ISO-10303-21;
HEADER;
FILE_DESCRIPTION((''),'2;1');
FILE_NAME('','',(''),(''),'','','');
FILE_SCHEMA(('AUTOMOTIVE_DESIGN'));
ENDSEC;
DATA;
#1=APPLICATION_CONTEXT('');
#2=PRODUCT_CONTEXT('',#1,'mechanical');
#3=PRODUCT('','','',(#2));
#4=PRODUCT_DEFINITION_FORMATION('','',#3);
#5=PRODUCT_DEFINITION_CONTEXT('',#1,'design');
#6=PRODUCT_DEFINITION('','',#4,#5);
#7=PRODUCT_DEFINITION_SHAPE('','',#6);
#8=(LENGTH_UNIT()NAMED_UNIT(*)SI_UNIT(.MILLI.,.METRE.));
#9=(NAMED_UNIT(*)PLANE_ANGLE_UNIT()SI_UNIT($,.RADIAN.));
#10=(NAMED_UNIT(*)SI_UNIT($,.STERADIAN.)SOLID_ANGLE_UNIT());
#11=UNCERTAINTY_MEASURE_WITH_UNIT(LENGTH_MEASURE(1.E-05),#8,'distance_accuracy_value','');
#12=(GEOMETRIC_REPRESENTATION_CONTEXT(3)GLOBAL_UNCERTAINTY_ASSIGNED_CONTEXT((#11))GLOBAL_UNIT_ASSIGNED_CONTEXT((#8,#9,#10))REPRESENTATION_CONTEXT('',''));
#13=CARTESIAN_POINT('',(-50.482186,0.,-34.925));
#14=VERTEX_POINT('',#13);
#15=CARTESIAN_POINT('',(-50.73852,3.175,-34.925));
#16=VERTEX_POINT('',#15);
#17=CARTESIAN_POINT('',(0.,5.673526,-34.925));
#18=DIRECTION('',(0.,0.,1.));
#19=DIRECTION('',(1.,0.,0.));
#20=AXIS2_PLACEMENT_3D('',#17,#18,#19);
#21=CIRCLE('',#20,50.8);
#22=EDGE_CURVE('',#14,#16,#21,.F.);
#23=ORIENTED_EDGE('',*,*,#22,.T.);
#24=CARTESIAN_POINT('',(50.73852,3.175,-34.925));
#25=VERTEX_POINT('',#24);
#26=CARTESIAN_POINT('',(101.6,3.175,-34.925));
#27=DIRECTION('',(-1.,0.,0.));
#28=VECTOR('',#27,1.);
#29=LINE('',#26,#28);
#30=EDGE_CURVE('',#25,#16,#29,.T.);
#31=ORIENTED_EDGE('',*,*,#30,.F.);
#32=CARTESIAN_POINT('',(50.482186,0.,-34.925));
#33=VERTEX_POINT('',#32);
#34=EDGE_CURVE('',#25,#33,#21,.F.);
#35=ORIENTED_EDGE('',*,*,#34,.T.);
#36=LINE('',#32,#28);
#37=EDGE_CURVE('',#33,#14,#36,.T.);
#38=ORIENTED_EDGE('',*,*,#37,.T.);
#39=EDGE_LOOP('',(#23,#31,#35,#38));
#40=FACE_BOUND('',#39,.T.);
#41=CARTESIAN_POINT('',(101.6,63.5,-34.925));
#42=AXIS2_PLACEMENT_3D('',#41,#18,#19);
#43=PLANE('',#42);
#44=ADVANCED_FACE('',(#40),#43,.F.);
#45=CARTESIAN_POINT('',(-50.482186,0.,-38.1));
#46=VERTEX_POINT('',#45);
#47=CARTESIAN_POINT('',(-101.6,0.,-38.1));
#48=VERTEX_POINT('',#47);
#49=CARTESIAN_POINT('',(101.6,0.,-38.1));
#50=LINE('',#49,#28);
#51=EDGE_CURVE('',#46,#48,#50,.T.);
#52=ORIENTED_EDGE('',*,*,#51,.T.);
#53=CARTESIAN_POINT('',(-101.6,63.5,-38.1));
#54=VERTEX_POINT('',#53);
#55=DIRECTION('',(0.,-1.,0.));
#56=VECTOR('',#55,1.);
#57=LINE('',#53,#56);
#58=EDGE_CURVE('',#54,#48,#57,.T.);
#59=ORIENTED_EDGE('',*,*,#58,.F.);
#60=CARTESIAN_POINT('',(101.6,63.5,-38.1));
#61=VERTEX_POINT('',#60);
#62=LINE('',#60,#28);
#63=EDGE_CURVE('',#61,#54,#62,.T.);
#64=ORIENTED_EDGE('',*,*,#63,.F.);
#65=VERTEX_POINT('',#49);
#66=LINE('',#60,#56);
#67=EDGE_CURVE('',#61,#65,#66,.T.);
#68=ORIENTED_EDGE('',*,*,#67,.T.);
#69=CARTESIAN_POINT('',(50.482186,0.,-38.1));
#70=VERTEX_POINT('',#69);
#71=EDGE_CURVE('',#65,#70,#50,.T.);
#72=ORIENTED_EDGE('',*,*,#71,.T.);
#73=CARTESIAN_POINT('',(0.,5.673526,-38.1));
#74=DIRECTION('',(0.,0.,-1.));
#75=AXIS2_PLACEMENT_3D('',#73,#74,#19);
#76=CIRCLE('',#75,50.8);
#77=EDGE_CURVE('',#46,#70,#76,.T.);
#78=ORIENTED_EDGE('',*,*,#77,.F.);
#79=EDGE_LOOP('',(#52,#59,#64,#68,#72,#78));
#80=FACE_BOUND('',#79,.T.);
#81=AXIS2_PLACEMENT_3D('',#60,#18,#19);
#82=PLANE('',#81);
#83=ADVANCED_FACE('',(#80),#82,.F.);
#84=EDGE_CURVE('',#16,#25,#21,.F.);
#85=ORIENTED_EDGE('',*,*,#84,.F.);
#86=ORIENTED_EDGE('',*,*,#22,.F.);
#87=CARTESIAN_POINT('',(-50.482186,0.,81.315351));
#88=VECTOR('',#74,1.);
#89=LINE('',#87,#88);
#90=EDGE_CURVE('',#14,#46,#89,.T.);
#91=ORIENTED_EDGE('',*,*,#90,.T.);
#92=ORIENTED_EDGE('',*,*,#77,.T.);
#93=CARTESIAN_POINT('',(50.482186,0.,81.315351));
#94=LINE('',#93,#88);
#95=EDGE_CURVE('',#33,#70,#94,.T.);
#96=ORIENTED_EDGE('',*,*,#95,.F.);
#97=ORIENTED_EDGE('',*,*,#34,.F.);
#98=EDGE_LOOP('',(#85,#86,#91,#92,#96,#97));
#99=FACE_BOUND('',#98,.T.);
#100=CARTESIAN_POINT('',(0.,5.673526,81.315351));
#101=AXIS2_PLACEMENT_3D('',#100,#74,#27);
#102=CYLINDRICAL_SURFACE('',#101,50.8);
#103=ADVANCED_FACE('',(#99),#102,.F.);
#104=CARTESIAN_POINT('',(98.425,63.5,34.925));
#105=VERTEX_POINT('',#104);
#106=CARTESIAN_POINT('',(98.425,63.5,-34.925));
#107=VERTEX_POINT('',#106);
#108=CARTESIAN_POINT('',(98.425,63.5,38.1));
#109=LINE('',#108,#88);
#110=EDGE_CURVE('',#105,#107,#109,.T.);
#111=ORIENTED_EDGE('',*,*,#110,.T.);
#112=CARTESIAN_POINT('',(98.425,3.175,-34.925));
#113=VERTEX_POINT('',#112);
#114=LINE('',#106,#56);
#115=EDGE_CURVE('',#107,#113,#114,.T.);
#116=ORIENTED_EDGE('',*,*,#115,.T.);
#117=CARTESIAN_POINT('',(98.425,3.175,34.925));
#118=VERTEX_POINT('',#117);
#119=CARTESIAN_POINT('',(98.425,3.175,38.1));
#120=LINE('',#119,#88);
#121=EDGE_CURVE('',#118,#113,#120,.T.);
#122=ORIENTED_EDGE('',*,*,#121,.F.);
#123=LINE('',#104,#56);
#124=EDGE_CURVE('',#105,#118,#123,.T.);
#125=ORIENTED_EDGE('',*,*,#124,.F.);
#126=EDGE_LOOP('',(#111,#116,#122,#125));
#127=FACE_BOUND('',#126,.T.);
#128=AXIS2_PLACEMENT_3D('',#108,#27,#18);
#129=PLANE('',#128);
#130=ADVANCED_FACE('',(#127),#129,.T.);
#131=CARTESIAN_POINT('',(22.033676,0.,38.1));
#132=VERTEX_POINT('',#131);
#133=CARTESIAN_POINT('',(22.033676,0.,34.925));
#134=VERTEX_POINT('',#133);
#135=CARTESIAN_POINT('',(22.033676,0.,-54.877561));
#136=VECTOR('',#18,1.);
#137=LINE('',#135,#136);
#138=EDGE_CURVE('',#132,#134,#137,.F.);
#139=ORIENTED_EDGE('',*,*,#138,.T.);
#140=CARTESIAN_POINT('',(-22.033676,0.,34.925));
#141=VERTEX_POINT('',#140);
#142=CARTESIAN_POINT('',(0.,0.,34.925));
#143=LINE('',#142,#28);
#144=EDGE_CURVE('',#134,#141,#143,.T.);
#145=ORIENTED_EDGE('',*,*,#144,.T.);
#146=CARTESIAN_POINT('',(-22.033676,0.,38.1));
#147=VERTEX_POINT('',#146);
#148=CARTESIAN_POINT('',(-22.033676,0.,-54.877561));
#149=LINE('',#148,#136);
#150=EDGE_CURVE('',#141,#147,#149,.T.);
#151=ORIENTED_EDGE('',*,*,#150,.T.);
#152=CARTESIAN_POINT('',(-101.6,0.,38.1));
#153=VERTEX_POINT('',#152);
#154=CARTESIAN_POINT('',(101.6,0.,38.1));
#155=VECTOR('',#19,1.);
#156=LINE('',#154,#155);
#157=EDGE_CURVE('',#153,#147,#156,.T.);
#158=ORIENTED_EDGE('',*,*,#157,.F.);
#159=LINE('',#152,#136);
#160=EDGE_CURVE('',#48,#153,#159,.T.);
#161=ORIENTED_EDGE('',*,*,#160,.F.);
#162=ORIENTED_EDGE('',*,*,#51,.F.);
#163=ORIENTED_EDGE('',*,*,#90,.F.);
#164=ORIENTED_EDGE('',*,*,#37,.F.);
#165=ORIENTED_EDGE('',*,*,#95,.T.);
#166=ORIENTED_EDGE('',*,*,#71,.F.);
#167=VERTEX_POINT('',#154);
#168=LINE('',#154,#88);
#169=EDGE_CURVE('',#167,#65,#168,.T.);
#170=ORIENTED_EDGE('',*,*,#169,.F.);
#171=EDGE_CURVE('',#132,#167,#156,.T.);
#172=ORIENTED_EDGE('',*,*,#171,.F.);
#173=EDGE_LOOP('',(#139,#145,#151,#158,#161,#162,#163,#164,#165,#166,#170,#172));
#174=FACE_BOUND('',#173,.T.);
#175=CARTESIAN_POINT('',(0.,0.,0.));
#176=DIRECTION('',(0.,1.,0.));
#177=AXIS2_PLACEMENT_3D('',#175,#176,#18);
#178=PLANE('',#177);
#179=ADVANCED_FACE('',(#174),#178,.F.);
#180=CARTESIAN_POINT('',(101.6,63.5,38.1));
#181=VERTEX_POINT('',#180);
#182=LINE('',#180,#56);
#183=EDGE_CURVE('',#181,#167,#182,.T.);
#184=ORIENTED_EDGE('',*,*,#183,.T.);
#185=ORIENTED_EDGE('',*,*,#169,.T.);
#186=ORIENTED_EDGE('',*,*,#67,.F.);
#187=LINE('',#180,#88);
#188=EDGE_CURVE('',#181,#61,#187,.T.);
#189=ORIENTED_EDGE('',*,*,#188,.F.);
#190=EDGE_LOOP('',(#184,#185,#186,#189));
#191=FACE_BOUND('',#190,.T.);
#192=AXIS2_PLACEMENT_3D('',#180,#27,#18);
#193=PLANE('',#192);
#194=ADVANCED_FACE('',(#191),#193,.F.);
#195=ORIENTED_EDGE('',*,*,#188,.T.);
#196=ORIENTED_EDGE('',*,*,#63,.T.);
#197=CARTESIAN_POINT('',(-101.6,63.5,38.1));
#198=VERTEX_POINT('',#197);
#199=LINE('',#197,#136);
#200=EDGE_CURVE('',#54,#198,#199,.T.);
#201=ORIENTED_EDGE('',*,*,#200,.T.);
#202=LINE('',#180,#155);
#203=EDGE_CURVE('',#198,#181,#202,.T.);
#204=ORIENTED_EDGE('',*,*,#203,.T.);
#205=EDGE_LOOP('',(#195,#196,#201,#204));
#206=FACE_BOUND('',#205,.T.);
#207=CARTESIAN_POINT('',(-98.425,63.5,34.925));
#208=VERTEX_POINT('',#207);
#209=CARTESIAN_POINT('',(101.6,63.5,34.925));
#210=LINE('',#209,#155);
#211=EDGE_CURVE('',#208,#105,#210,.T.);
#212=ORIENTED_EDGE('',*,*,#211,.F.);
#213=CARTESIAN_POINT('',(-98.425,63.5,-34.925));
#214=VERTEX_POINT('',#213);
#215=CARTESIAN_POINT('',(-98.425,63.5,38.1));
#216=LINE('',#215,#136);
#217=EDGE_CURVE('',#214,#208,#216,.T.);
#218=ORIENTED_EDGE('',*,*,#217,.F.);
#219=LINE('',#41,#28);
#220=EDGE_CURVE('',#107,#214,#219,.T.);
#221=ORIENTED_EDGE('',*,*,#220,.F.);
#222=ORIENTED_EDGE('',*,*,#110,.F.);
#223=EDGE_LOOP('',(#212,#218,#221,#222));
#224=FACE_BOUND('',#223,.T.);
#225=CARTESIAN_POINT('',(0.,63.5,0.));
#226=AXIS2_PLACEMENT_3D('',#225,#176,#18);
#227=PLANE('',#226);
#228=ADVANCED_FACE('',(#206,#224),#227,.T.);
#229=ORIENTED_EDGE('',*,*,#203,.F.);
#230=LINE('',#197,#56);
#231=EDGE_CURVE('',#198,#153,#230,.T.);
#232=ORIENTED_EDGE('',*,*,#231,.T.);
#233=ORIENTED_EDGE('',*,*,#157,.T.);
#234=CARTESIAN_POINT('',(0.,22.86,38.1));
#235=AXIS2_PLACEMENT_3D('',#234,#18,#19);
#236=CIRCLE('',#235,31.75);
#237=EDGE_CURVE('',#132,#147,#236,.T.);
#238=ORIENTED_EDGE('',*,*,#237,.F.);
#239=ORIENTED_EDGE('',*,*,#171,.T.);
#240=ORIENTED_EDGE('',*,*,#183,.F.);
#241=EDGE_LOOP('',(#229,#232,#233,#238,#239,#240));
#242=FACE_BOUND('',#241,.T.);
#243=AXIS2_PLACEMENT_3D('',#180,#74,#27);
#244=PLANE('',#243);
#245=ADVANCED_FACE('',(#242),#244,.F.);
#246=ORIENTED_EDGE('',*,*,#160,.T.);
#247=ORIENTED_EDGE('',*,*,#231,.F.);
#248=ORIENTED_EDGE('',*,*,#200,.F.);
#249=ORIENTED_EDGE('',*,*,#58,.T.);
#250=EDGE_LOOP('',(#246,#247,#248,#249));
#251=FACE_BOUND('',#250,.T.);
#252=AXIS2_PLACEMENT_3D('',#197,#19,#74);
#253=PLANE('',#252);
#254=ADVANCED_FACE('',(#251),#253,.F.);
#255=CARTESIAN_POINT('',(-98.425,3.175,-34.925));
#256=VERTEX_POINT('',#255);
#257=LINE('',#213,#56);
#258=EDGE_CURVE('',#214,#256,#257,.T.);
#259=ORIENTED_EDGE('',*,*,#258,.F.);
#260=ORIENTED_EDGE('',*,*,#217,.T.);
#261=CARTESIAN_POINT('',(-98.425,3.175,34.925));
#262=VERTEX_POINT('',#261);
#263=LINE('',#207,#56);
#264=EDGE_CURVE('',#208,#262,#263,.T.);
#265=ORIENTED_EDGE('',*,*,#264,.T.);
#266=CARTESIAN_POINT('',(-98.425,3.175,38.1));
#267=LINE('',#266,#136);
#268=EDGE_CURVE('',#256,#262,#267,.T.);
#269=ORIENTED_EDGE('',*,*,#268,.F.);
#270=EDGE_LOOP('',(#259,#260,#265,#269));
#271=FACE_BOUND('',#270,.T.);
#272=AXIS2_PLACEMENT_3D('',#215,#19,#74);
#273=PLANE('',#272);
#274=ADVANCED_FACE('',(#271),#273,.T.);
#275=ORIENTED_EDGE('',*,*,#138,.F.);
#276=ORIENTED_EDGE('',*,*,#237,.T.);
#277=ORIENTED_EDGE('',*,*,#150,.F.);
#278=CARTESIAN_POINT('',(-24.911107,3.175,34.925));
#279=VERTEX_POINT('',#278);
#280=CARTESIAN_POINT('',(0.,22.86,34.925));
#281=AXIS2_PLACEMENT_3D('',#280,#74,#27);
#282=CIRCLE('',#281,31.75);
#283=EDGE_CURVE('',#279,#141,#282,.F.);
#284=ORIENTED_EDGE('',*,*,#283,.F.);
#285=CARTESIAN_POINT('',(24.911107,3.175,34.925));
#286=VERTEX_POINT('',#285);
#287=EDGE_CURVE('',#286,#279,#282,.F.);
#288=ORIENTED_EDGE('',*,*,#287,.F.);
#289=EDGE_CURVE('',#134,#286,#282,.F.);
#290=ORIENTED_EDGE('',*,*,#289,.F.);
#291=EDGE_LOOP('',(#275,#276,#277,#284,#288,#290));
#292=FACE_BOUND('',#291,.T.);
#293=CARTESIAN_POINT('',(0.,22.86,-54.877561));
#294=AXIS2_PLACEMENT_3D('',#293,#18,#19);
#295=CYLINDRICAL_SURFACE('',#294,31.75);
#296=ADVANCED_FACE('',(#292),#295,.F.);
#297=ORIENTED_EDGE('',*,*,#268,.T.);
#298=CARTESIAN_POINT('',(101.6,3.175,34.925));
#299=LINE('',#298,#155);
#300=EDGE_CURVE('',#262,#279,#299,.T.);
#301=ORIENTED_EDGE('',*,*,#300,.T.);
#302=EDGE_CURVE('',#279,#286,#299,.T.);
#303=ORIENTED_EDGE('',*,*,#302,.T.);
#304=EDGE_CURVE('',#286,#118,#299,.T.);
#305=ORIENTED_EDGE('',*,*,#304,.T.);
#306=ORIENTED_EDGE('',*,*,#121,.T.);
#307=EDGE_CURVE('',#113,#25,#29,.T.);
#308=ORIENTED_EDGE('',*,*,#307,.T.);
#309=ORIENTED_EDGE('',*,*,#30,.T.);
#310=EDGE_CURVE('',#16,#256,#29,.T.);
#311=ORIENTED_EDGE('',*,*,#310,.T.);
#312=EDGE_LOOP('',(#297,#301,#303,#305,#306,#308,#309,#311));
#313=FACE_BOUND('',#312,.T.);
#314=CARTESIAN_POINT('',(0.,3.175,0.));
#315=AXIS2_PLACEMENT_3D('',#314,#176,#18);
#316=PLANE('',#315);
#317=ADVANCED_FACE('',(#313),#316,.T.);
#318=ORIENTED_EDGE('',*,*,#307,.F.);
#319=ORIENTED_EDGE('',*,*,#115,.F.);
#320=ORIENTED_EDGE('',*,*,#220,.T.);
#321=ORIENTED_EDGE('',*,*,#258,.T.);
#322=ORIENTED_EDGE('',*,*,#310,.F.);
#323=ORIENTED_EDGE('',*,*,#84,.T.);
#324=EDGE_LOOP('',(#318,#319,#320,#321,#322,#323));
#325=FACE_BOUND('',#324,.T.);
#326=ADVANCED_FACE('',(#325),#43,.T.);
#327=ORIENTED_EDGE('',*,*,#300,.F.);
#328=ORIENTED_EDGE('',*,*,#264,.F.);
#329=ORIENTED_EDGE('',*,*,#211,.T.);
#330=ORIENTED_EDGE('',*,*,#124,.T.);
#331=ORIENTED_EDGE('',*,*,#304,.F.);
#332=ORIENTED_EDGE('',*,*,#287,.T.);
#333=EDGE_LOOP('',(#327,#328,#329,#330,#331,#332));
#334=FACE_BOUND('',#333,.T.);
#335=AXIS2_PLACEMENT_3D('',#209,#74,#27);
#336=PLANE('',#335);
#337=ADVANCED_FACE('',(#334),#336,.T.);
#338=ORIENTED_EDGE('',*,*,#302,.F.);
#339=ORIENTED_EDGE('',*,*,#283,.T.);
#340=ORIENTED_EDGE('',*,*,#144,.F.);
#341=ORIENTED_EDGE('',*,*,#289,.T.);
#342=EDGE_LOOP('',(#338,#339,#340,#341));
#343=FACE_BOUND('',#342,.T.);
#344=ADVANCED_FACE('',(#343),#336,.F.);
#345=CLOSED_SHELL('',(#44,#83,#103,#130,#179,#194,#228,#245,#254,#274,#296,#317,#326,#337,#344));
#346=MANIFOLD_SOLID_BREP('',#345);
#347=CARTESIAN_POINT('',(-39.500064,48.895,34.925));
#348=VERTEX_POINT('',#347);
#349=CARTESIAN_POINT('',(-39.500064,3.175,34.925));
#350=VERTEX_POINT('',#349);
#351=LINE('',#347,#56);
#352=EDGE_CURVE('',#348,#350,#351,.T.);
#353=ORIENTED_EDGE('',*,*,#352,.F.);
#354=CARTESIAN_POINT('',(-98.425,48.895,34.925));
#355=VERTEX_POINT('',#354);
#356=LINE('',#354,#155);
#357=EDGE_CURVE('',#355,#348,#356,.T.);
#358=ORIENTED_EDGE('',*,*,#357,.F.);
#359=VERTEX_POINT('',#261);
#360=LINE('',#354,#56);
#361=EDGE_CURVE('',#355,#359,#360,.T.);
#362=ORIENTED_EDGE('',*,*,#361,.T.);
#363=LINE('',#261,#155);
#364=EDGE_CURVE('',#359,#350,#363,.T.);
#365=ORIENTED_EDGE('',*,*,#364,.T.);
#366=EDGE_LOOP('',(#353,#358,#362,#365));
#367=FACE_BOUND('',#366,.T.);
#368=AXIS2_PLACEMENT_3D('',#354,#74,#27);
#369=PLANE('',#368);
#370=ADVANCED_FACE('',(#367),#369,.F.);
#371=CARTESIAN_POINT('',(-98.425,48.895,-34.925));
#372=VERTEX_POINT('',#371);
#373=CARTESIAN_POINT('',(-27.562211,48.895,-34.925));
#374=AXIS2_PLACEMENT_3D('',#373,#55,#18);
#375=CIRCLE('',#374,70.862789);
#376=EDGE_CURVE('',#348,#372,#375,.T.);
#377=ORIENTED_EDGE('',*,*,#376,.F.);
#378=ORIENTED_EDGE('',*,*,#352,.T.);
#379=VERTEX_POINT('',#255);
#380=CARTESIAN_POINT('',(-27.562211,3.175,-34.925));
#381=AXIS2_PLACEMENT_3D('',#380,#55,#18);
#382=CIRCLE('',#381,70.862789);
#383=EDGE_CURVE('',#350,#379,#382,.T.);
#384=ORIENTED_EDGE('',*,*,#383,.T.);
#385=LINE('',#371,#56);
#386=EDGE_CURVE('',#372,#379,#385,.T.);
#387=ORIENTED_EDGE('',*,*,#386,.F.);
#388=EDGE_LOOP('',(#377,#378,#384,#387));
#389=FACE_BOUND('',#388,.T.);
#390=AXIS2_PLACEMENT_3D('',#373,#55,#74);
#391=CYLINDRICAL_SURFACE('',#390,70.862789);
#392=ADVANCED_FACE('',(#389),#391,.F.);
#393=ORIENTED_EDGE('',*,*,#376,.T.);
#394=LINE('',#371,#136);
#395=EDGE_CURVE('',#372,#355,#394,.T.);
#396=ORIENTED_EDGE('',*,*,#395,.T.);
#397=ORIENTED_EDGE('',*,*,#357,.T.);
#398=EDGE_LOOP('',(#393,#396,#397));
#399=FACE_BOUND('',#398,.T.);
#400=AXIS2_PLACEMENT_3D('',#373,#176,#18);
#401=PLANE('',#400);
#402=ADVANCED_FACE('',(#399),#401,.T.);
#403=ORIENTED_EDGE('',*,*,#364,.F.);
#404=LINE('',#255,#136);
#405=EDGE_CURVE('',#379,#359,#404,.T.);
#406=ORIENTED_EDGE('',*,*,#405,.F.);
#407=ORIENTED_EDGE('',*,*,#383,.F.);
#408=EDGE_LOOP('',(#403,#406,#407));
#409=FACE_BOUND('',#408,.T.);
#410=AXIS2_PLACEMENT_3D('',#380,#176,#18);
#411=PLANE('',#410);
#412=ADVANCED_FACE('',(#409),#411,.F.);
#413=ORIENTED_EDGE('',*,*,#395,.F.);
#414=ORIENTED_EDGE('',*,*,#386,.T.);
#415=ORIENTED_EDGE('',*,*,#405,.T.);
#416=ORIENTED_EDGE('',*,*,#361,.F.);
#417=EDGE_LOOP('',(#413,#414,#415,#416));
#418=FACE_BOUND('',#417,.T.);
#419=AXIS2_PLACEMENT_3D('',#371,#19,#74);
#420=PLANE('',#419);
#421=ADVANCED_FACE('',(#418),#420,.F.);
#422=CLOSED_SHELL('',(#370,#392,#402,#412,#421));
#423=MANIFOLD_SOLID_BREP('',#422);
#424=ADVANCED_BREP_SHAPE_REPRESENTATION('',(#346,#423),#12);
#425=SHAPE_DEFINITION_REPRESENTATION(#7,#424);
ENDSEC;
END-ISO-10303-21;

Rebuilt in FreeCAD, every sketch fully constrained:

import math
import FreeCAD as App
import Part
import Sketcher
from FreeCAD import Vector
Q = App.Units.Quantity


def faces_at(feature, points):
    """Names of the faces that lie closest to the given points."""
    faces = feature.Shape.Faces
    near = lambda p: min(range(len(faces)), key=lambda i: faces[i].distToShape(Part.Vertex(*p))[0])
    return sorted({f"Face{near(p) + 1}" for p in points})

doc = App.newDocument("Part")
body = doc.addObject("PartDesign::Body", "Body")

# Sketch on XZ plane
sketch1 = body.newObject("Sketcher::SketchObject", "Sketch")
sketch1.AttachmentSupport = (doc.getObject("XZ_Plane"), [""])
sketch1.MapMode = "FlatFace"
sketch1.addGeometry(Part.LineSegment(Vector(-102, -38, 0), Vector(-102, 38, 0)), False)
sketch1.addGeometry(Part.LineSegment(Vector(-102, 38, 0), Vector(102, 38, 0)), False)
sketch1.addGeometry(Part.LineSegment(Vector(102, 38, 0), Vector(102, -38, 0)), False)
sketch1.addGeometry(Part.LineSegment(Vector(102, -38, 0), Vector(-102, -38, 0)), False)
sketch1.addConstraint(Sketcher.Constraint("Coincident", 0, 2, 1, 1))
sketch1.addConstraint(Sketcher.Constraint("Coincident", 1, 2, 2, 1))
sketch1.addConstraint(Sketcher.Constraint("Coincident", 2, 2, 3, 1))
sketch1.addConstraint(Sketcher.Constraint("Coincident", 3, 2, 0, 1))
sketch1.addConstraint(Sketcher.Constraint("Vertical", 0))
sketch1.addConstraint(Sketcher.Constraint("Horizontal", 1))
sketch1.addConstraint(Sketcher.Constraint("Vertical", 2))
sketch1.addConstraint(Sketcher.Constraint("Horizontal", 3))
sketch1.addConstraint(Sketcher.Constraint("Symmetric", 0, 2, 2, 2, -1, 1))
sketch1.addConstraint(Sketcher.Constraint("DistanceX", 1, 1, 1, 2, Q("8 in")))
sketch1.addConstraint(Sketcher.Constraint("DistanceY", 0, 1, 0, 2, Q("3 in")))
pad1 = body.newObject("PartDesign::Pad", "Pad")
pad1.Profile = sketch1
pad1.Length = Q("2.5 in")
pad1.Reversed = True
doc.recompute()

thickness = body.newObject("PartDesign::Thickness", "Thickness")
thickness.Base = (pad1, faces_at(pad1, [(0, 63.5, 0)]))
thickness.Value = Q("0.125 in")
thickness.Reversed = True
thickness.Join = "Intersection"

# Sketch on XY plane
sketch2 = body.newObject("Sketcher::SketchObject", "Sketch001")
sketch2.AttachmentSupport = (doc.getObject("XY_Plane"), [""])
sketch2.MapMode = "FlatFace"
sketch2.AttachmentOffset = App.Placement(Vector(0, 0, -1.5 * 25.4), App.Rotation())
sketch2.addGeometry(Part.LineSegment(Vector(50, 0, 0), Vector(-50, 0, 0)), False)
sketch2.addGeometry(Part.ArcOfCircle(Part.Circle(Vector(0, 6, 0), Vector(0, 0, 1), 51), math.radians(-6), math.radians(186)), False)
sketch2.addConstraint(Sketcher.Constraint("Coincident", 0, 1, 1, 1))
sketch2.addConstraint(Sketcher.Constraint("Coincident", 1, 2, 0, 2))
sketch2.addConstraint(Sketcher.Constraint("Horizontal", 0))
sketch2.addConstraint(Sketcher.Constraint("Symmetric", 0, 1, 1, 2, -1, 1))
sketch2.addConstraint(Sketcher.Constraint("Radius", 1, Q("2 in")))
sketch2.addConstraint(Sketcher.Constraint("DistanceX", 0, 2, 0, 1, Q("100.964372 mm")))
pocket1 = body.newObject("PartDesign::Pocket", "Pocket")
pocket1.Profile = sketch2
pocket1.Length = Q("0.125 in")
pocket1.Reversed = True

# Sketch on XY plane
sketch3 = body.newObject("Sketcher::SketchObject", "Sketch002")
sketch3.AttachmentSupport = (doc.getObject("XY_Plane"), [""])
sketch3.MapMode = "FlatFace"
sketch3.AttachmentOffset = App.Placement(Vector(0, 0, 1.5 * 25.4), App.Rotation())
sketch3.addGeometry(Part.Circle(Vector(0, 23, 0), Vector(0, 0, 1), 32), False)
sketch3.addConstraint(Sketcher.Constraint("PointOnObject", 0, 3, -2))
sketch3.addConstraint(Sketcher.Constraint("Diameter", 0, Q("2.5 in")))
sketch3.addConstraint(Sketcher.Constraint("DistanceY", -1, 1, 0, 3, Q("0.9 in")))
pocket2 = body.newObject("PartDesign::Pocket", "Pocket001")
pocket2.Profile = sketch3
pocket2.Length = Q("0.125 in")
body2 = doc.addObject("PartDesign::Body", "Body001")

# Sketch on XZ plane
sketch4 = body2.newObject("Sketcher::SketchObject", "Sketch003")
sketch4.AttachmentSupport = (doc.getObject("XZ_Plane001"), [""])
sketch4.MapMode = "FlatFace"
sketch4.AttachmentOffset = App.Placement(Vector(0, 0, -0.125 * 25.4), App.Rotation())
sketch4.addGeometry(Part.LineSegment(Vector(-98, -35, 0), Vector(-98, 35, 0)), False)
sketch4.addGeometry(Part.LineSegment(Vector(-98, 35, 0), Vector(-40, 35, 0)), False)
sketch4.addGeometry(Part.ArcOfCircle(Part.Circle(Vector(-28, -35, 0), Vector(0, 0, 1), 71), math.radians(100), math.radians(180)), False)
sketch4.addConstraint(Sketcher.Constraint("Coincident", 0, 2, 1, 1))
sketch4.addConstraint(Sketcher.Constraint("Coincident", 1, 2, 2, 1))
sketch4.addConstraint(Sketcher.Constraint("Tangent", 2, 2, 0, 1))
sketch4.addConstraint(Sketcher.Constraint("Vertical", 0))
sketch4.addConstraint(Sketcher.Constraint("Horizontal", 1))
sketch4.addConstraint(Sketcher.Constraint("DistanceY", 0, 1, 0, 2, Q("2.75 in")))
sketch4.addConstraint(Sketcher.Constraint("DistanceY", 2, 3, -1, 1, Q("1.375 in")))
sketch4.addConstraint(Sketcher.Constraint("DistanceX", 0, 2, -1, 1, Q("3.875 in")))
sketch4.addConstraint(Sketcher.Constraint("Radius", 2, Q("70.862789 mm")))
pad2 = body2.newObject("PartDesign::Pad", "Pad001")
pad2.Profile = sketch4
pad2.Length = Q("1.8 in")
pad2.Reversed = True

doc.recompute()
